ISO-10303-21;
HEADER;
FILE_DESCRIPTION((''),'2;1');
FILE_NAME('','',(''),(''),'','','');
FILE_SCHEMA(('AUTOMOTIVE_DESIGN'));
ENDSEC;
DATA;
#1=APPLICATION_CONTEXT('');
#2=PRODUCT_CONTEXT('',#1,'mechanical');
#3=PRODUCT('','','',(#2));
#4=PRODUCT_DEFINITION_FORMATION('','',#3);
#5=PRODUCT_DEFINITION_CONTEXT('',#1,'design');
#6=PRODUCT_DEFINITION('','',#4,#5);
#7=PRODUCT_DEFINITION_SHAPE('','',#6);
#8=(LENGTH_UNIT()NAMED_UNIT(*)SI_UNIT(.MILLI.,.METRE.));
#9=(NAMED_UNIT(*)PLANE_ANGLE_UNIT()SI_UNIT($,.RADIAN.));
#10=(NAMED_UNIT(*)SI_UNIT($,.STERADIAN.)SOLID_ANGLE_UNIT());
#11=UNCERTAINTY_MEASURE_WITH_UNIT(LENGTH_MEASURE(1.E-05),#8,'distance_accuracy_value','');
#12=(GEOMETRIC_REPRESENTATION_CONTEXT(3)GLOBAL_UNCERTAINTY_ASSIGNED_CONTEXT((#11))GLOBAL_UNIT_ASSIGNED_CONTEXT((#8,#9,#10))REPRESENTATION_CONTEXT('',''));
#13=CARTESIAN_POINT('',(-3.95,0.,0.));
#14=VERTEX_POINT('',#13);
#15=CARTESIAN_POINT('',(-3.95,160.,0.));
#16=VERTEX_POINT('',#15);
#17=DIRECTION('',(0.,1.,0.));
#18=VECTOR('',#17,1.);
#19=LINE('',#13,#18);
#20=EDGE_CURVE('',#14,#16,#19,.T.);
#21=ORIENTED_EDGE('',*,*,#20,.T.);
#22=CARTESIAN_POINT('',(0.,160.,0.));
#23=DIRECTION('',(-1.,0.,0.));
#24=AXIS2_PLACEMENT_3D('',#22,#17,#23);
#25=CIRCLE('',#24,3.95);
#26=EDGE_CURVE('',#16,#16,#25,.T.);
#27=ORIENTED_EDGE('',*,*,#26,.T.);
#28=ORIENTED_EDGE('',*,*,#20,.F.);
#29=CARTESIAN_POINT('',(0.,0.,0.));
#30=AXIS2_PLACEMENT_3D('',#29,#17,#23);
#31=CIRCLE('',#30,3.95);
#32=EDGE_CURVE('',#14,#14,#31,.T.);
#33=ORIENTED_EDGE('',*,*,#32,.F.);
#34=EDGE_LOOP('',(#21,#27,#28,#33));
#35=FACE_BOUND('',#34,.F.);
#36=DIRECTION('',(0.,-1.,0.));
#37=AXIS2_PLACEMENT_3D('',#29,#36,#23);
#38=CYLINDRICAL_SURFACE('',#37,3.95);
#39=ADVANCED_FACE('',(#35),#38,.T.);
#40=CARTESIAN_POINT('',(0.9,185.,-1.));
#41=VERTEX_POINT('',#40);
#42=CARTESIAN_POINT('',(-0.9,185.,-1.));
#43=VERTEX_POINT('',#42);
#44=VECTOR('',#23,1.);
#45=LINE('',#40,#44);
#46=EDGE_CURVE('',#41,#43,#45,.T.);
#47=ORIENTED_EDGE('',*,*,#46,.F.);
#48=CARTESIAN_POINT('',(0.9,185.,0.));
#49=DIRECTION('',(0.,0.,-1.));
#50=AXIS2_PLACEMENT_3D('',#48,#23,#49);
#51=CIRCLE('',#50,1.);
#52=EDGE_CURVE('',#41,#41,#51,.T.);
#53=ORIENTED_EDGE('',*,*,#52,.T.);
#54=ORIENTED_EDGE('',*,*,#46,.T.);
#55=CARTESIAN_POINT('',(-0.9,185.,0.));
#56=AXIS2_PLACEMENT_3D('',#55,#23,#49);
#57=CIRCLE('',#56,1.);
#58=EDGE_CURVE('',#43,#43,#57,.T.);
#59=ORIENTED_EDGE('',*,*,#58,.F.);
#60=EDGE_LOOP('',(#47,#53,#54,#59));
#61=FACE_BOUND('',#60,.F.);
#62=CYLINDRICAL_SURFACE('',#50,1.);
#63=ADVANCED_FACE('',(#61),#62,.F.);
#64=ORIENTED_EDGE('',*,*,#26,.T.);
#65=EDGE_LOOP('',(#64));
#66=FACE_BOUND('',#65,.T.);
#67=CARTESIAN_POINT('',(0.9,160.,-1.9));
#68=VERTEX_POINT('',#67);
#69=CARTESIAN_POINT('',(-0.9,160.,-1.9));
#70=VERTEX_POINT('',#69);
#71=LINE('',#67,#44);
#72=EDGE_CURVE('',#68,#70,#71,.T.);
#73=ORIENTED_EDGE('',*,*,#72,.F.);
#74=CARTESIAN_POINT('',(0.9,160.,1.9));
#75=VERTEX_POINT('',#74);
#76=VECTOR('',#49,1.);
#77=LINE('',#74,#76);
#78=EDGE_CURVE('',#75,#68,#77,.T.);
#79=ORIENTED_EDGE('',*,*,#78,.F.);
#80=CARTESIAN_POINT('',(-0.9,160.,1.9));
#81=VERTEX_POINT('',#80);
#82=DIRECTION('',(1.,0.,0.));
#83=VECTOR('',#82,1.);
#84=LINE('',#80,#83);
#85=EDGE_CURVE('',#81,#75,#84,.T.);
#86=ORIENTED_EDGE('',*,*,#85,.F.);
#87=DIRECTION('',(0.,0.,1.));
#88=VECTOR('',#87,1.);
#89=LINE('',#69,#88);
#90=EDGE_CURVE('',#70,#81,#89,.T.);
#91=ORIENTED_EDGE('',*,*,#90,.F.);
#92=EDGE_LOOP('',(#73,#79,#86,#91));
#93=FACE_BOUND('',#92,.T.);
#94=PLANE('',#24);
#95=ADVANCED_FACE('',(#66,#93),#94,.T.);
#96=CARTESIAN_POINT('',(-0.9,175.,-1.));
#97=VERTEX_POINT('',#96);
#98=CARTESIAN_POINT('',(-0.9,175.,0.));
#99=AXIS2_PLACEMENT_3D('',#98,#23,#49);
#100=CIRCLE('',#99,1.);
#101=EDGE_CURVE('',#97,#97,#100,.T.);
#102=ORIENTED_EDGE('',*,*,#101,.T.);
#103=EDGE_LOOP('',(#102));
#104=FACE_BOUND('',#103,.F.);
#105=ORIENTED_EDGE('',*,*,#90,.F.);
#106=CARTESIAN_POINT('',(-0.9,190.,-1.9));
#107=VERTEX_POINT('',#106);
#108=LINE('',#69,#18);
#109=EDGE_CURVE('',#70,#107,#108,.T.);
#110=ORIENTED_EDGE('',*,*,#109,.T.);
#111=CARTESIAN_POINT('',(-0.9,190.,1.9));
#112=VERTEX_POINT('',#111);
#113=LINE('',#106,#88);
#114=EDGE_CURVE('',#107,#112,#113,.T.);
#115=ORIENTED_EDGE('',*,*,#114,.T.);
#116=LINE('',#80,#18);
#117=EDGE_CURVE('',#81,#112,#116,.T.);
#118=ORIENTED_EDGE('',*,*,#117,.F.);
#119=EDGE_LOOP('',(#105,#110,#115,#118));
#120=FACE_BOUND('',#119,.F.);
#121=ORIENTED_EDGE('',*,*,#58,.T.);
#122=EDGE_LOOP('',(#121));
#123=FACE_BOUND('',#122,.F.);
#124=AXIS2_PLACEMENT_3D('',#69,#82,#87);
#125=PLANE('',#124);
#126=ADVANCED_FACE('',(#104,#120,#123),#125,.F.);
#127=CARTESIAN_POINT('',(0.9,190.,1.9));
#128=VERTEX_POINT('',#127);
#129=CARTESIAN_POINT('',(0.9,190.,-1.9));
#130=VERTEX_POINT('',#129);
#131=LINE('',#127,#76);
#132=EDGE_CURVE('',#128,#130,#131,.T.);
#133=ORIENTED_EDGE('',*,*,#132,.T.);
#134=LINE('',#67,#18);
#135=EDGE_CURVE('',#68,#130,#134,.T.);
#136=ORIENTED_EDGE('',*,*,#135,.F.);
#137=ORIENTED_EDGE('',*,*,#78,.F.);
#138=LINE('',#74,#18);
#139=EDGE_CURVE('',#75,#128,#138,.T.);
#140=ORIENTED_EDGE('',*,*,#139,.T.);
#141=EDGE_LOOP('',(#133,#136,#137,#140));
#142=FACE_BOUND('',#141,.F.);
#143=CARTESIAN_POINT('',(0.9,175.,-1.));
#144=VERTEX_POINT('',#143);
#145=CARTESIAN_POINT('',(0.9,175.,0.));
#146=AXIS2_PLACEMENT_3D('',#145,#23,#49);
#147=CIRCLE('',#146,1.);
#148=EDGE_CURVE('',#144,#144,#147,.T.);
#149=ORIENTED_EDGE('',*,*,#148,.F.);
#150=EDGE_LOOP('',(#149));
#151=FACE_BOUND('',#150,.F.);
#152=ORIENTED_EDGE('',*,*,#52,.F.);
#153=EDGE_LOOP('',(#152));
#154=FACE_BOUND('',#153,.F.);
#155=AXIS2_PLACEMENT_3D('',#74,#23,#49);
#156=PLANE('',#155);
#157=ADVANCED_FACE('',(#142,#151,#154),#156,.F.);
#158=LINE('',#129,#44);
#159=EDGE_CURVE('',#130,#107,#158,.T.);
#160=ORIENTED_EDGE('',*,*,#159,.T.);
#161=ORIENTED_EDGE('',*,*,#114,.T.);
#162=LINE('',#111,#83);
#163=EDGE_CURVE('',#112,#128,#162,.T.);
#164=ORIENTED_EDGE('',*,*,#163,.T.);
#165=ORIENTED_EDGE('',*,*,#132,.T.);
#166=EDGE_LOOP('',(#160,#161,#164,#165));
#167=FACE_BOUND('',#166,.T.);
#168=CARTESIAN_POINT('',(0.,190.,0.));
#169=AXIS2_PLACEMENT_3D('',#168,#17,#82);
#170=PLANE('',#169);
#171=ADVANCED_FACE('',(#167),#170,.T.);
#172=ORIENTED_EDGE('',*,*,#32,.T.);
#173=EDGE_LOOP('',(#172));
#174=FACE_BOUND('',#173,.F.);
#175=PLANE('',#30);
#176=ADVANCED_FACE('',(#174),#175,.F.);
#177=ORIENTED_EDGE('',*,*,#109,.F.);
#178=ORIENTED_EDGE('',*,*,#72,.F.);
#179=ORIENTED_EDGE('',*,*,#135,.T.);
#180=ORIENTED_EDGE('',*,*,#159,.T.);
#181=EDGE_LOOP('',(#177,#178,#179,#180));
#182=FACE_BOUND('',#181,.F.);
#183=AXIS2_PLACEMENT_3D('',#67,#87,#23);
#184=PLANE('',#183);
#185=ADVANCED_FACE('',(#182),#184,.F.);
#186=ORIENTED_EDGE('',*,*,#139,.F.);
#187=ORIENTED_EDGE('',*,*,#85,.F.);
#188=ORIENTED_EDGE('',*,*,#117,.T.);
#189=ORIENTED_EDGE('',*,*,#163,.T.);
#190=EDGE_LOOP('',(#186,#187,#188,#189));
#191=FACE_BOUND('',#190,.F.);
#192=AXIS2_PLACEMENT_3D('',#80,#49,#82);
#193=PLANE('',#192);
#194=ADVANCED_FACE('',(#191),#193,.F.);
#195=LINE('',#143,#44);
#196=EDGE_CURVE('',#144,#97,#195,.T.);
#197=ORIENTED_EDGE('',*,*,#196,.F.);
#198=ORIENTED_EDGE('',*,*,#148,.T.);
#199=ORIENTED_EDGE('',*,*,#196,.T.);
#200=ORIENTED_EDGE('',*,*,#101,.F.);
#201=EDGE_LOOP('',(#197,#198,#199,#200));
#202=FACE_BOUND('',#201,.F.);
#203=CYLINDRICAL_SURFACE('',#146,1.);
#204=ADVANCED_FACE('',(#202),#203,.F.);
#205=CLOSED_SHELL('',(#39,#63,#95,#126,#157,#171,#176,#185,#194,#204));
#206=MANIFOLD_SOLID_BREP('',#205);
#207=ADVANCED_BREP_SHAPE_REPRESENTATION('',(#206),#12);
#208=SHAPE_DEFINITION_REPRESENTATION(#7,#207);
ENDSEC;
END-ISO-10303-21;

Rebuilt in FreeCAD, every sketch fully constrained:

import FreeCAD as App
import Part
import Sketcher
Q = App.Units.Quantity


def add_polygon(sketch, points):
    """Adds a closed chain of lines whose ends are joined by coincident constraints."""
    first, n = sketch.GeometryCount, len(points)
    for a, b in zip(points, points[1:] + points[:1]):
        sketch.addGeometry(Part.LineSegment(App.Vector(*a, 0), App.Vector(*b, 0)), False)
    for i in range(n):
        sketch.addConstraint(Sketcher.Constraint("Coincident", first + i, 2, first + (i + 1) % n, 1))

doc = App.newDocument("Part")
params = doc.addObject("Spreadsheet::Sheet", "Params")
for row, (alias, value) in enumerate([
    ("sketch1_diameter", "7.9 mm"),
    ("pad1_length", "160 mm"),
    ("sketch2_width", "1.8 mm"),
    ("sketch2_height", "3.8 mm"),
    ("pad2_length", "30 mm"),
    ("sketch3_diameter", "2 mm"),
    ("hole_diameter", "2 mm"),
], start=1):
    params.set(f"A{row}", alias)
    params.set(f"B{row}", "=" + value)
    params.setAlias(f"B{row}", alias)

body = doc.addObject("PartDesign::Body", "Body")

# Sketch on XZ plane
sketch1 = body.newObject("Sketcher::SketchObject", "Sketch")
sketch1.AttachmentSupport = (doc.getObject("XZ_Plane"), [""])
sketch1.MapMode = "FlatFace"
sketch1.addGeometry(Part.Circle(App.Vector(0, 0, 0), App.Vector(0, 0, 1), 4), False)
sketch1.addConstraint([
    Sketcher.Constraint("Coincident", 0, 3, -1, 1),
    Sketcher.Constraint("Diameter", 0, Q("7.9 mm")),
])
sketch1.setExpression("Constraints[1]", "Params.sketch1_diameter")
pad1 = body.newObject("PartDesign::Pad", "Pad")
pad1.Profile = sketch1
pad1.setExpression("Length", "Params.pad1_length")
pad1.Reversed = True

# Sketch on XZ plane
sketch2 = body.newObject("Sketcher::SketchObject", "Sketch001")
sketch2.AttachmentSupport = (doc.getObject("XZ_Plane"), [""])
sketch2.MapMode = "FlatFace"
sketch2.AttachmentOffset = App.Placement(App.Vector(0, 0, -160), App.Rotation())
add_polygon(sketch2, [(-0.9, -1.9), (-0.9, 1.9), (0.9, 1.9), (0.9, -1.9)])  # lines 0-3
sketch2.addConstraint([
    Sketcher.Constraint("Vertical", 0),
    Sketcher.Constraint("Horizontal", 1),
    Sketcher.Constraint("Vertical", 2),
    Sketcher.Constraint("Horizontal", 3),
    Sketcher.Constraint("Symmetric", 0, 2, 2, 2, -1, 1),
    Sketcher.Constraint("DistanceX", 1, 1, 1, 2, Q("1.8 mm")),
    Sketcher.Constraint("DistanceY", 0, 1, 0, 2, Q("3.8 mm")),
])
sketch2.setExpression("Constraints[9]", "Params.sketch2_width")
sketch2.setExpression("Constraints[10]", "Params.sketch2_height")
pad2 = body.newObject("PartDesign::Pad", "Pad001")
pad2.Profile = sketch2
pad2.setExpression("Length", "Params.pad2_length")
pad2.Reversed = True

# Sketch on YZ plane
sketch3 = body.newObject("Sketcher::SketchObject", "Sketch002")
sketch3.AttachmentSupport = (doc.getObject("YZ_Plane"), [""])
sketch3.MapMode = "FlatFace"
sketch3.AttachmentOffset = App.Placement(App.Vector(0, 0, 0.9), App.Rotation())
sketch3.addGeometry([
    Part.Circle(App.Vector(185, 0, 0), App.Vector(0, 0, 1), 1),
    Part.Circle(App.Vector(175, 0, 0), App.Vector(0, 0, 1), 1),
], False)
sketch3.addConstraint([
    Sketcher.Constraint("Equal", 0, 1),
    Sketcher.Constraint("PointOnObject", 0, 3, -1),
    Sketcher.Constraint("PointOnObject", 1, 3, -1),
    Sketcher.Constraint("Diameter", 0, Q("2 mm")),
    Sketcher.Constraint("DistanceX", -1, 1, 0, 3, Q("185 mm")),
    Sketcher.Constraint("DistanceX", -1, 1, 1, 3, Q("175 mm")),
])
sketch3.setExpression("Constraints[3]", "Params.sketch3_diameter")
doc.recompute()
hole = body.newObject("PartDesign::Hole", "Hole")
hole.Profile = sketch3
hole.ThreadType = "None"
hole.setExpression("Diameter", "Params.hole_diameter")
hole.DepthType = "ThroughAll"

doc.recompute()
